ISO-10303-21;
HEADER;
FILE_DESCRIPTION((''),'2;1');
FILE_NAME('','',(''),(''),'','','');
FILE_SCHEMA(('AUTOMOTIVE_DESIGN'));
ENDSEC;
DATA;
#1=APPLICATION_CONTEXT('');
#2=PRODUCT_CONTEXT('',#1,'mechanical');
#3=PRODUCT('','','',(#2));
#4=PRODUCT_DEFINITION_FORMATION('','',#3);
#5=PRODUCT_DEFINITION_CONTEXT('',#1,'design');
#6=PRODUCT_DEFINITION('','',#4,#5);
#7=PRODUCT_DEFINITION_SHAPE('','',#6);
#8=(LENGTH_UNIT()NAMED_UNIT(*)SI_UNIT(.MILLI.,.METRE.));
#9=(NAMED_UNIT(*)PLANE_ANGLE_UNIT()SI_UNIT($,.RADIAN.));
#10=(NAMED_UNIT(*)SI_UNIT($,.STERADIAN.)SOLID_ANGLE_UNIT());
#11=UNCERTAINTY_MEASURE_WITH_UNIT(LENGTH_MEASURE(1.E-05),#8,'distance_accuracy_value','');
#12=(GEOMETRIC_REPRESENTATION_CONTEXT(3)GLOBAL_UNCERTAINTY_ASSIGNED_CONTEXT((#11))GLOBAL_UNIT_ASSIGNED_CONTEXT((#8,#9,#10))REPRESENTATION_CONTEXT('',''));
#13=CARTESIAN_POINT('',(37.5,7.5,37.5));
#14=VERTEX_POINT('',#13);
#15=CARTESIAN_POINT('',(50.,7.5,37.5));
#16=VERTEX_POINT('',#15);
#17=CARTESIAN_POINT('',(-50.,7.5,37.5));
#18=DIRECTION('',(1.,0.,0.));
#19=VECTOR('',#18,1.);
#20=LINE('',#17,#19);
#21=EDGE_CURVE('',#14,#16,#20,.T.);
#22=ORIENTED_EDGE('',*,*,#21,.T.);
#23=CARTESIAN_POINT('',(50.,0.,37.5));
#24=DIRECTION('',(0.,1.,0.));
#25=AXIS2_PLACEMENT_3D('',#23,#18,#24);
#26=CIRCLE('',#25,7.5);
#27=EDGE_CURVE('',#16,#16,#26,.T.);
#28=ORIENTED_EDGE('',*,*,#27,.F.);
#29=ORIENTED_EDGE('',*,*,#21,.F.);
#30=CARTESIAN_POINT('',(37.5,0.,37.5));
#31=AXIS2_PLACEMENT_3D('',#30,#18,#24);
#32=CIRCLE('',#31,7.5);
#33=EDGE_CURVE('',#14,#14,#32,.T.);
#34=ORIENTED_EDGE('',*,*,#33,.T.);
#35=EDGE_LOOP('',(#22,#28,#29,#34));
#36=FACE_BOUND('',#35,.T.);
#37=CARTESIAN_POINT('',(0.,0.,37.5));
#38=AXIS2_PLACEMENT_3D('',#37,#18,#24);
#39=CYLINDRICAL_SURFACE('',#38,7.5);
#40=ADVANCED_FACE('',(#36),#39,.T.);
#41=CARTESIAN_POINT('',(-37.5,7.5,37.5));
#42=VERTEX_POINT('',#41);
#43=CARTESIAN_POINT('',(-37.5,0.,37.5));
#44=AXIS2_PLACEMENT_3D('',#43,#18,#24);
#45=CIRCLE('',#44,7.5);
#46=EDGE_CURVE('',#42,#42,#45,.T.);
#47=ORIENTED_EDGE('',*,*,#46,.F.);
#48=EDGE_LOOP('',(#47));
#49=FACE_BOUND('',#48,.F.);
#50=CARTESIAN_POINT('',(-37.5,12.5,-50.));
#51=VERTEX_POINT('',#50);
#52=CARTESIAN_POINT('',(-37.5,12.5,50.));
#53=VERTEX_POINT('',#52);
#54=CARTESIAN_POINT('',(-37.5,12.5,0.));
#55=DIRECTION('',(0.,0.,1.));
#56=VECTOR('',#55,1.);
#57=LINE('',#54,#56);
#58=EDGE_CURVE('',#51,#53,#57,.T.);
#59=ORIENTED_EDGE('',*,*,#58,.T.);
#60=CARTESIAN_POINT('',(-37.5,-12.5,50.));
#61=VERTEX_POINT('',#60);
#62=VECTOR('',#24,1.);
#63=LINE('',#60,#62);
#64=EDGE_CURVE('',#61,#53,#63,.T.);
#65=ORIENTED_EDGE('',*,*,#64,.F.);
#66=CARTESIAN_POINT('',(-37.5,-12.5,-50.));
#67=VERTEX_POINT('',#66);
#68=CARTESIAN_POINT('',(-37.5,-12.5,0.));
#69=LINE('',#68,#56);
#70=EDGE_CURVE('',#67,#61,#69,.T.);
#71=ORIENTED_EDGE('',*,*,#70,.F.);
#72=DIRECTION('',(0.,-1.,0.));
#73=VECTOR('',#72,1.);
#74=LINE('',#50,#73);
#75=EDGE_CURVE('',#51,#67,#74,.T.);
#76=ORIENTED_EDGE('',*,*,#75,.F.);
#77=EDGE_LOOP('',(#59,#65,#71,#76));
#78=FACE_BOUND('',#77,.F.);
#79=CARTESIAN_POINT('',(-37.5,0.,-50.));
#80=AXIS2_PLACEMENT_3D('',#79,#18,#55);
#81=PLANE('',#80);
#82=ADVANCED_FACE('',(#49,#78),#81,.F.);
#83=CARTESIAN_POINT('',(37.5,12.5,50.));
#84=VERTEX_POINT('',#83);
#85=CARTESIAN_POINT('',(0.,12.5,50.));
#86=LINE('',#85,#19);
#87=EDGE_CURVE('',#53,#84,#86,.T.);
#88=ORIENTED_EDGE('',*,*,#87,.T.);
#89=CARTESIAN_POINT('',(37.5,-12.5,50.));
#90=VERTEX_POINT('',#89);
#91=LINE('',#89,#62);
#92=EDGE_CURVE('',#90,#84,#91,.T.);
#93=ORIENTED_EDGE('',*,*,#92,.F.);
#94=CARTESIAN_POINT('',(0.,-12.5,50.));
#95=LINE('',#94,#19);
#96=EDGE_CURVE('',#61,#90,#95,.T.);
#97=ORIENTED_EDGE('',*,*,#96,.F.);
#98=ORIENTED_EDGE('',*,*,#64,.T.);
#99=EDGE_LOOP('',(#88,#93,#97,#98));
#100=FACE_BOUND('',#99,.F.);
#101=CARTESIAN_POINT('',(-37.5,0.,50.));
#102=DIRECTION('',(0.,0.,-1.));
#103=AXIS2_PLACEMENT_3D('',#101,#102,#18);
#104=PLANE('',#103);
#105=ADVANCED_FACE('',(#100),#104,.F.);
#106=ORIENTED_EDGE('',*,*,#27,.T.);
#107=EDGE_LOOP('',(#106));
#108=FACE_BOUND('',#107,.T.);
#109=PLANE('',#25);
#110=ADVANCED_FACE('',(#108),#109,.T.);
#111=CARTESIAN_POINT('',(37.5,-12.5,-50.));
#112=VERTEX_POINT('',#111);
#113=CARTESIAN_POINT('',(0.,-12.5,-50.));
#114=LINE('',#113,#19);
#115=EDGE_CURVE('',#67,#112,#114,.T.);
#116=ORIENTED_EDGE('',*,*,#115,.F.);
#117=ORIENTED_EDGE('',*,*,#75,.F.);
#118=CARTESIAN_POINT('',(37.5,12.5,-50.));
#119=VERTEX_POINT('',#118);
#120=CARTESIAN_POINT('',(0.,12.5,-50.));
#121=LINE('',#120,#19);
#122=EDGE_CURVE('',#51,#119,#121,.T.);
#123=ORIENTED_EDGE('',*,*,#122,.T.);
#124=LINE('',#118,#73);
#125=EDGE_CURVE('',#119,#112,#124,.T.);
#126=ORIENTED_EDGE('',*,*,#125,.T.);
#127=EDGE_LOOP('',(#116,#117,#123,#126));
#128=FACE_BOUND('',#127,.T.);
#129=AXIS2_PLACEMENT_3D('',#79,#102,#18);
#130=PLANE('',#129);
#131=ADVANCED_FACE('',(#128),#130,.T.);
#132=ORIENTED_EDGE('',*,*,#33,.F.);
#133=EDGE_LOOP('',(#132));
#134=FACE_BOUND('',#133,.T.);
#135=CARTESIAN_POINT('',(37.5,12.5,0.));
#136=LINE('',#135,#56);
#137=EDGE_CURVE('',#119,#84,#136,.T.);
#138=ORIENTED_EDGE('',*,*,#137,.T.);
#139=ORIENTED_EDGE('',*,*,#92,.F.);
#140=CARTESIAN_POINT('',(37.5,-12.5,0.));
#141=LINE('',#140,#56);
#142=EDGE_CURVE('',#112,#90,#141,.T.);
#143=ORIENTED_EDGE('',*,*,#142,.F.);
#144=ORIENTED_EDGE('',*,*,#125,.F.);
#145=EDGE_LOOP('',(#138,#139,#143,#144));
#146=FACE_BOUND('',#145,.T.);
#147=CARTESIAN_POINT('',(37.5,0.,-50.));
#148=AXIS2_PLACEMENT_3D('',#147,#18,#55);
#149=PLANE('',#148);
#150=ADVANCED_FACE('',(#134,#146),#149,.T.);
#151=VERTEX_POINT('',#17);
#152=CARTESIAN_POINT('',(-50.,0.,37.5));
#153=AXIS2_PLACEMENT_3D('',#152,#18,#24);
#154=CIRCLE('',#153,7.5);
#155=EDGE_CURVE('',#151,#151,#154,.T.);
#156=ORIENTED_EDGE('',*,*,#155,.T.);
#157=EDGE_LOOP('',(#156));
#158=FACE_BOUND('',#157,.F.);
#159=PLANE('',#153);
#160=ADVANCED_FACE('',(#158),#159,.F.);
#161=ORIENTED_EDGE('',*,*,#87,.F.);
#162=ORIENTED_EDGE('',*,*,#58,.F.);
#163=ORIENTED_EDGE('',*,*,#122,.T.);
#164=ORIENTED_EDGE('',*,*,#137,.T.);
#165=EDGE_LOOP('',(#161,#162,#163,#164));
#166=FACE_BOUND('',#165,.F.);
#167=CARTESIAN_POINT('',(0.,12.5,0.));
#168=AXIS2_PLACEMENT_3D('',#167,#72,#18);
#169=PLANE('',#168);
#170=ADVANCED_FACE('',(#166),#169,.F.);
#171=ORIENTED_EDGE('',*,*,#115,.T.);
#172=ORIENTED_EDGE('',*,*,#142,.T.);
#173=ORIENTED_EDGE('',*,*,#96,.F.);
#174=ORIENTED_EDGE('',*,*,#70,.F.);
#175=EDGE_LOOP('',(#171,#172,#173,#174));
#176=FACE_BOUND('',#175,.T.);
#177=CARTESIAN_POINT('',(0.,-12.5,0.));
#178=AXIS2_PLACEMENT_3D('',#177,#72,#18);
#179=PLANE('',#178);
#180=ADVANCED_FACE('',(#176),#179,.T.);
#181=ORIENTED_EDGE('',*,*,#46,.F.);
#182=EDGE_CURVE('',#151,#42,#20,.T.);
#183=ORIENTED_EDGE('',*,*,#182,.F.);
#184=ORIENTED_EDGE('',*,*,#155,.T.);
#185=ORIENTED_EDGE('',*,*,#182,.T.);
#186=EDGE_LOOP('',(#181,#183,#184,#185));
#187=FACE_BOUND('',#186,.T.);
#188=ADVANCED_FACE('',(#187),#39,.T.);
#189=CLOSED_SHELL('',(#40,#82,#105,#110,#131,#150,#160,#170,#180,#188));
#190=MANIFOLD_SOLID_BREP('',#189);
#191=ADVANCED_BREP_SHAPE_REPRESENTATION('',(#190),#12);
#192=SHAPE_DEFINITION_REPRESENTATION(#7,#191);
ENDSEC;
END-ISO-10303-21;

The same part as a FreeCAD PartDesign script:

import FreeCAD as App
import Part
import Sketcher

V = App.Vector

doc = App.newDocument("Part")
params = doc.addObject("Spreadsheet::Sheet", "Params")
for row, (alias, value) in enumerate([
    ("sketch1_width", "75 mm"),
    ("sketch1_height", "100 mm"),
    ("pad1_length", "25 mm"),
    ("sketch2_diameter", "15 mm"),
    ("pad2_length", "100 mm"),
], start=1):
    params.set(f"A{row}", alias)
    params.set(f"B{row}", "=" + value)
    params.setAlias(f"B{row}", alias)

body = doc.addObject("PartDesign::Body", "Body")

sketch1 = doc.addObject("Sketcher::SketchObject", "Sketch")
body.addObject(sketch1)
sketch1.AttachmentSupport = (doc.XZ_Plane, [""])
sketch1.MapMode = "FlatFace"
sketch1.addGeometry([
    Part.LineSegment(V(-37.5, 50, 0), V(-37.5, -50, 0)),
    Part.LineSegment(V(-37.5, -50, 0), V(37.5, -50, 0)),
    Part.LineSegment(V(37.5, -50, 0), V(37.5, 50, 0)),
    Part.LineSegment(V(37.5, 50, 0), V(-37.5, 50, 0)),
], False)
sketch1.addConstraint([
    Sketcher.Constraint("Coincident", 0, 2, 1, 1),
    Sketcher.Constraint("Coincident", 1, 2, 2, 1),
    Sketcher.Constraint("Coincident", 2, 2, 3, 1),
    Sketcher.Constraint("Coincident", 3, 2, 0, 1),
    Sketcher.Constraint("Vertical", 0),
    Sketcher.Constraint("Horizontal", 1),
    Sketcher.Constraint("Vertical", 2),
    Sketcher.Constraint("Horizontal", 3),
    Sketcher.Constraint("Symmetric", 0, 2, 2, 2, -1, 1),
    Sketcher.Constraint("DistanceX", 1, 1, 1, 2, 75.0),
    Sketcher.Constraint("DistanceY", 0, 2, 0, 1, 100.0),
])
sketch1.setExpression("Constraints[9]", "Params.sketch1_width")
sketch1.setExpression("Constraints[10]", "Params.sketch1_height")
pad1 = doc.addObject("PartDesign::Pad", "Pad")
body.addObject(pad1)
pad1.Profile = sketch1
pad1.setExpression("Length", "Params.pad1_length")
pad1.Midplane = True

sketch2 = doc.addObject("Sketcher::SketchObject", "Sketch001")
body.addObject(sketch2)
sketch2.AttachmentSupport = (doc.YZ_Plane, [""])
sketch2.MapMode = "FlatFace"
sketch2.addGeometry(Part.Circle(V(0, 37.5, 0), V(0, 0, 1), 7.5), False)
sketch2.addConstraint([
    Sketcher.Constraint("PointOnObject", 0, 3, -2),
    Sketcher.Constraint("Diameter", 0, 15.0),
    Sketcher.Constraint("DistanceY", -1, 1, 0, 3, 37.5),
])
sketch2.setExpression("Constraints[1]", "Params.sketch2_diameter")
pad2 = doc.addObject("PartDesign::Pad", "Pad001")
body.addObject(pad2)
pad2.Profile = sketch2
pad2.setExpression("Length", "Params.pad2_length")
pad2.Midplane = True

doc.recompute()
